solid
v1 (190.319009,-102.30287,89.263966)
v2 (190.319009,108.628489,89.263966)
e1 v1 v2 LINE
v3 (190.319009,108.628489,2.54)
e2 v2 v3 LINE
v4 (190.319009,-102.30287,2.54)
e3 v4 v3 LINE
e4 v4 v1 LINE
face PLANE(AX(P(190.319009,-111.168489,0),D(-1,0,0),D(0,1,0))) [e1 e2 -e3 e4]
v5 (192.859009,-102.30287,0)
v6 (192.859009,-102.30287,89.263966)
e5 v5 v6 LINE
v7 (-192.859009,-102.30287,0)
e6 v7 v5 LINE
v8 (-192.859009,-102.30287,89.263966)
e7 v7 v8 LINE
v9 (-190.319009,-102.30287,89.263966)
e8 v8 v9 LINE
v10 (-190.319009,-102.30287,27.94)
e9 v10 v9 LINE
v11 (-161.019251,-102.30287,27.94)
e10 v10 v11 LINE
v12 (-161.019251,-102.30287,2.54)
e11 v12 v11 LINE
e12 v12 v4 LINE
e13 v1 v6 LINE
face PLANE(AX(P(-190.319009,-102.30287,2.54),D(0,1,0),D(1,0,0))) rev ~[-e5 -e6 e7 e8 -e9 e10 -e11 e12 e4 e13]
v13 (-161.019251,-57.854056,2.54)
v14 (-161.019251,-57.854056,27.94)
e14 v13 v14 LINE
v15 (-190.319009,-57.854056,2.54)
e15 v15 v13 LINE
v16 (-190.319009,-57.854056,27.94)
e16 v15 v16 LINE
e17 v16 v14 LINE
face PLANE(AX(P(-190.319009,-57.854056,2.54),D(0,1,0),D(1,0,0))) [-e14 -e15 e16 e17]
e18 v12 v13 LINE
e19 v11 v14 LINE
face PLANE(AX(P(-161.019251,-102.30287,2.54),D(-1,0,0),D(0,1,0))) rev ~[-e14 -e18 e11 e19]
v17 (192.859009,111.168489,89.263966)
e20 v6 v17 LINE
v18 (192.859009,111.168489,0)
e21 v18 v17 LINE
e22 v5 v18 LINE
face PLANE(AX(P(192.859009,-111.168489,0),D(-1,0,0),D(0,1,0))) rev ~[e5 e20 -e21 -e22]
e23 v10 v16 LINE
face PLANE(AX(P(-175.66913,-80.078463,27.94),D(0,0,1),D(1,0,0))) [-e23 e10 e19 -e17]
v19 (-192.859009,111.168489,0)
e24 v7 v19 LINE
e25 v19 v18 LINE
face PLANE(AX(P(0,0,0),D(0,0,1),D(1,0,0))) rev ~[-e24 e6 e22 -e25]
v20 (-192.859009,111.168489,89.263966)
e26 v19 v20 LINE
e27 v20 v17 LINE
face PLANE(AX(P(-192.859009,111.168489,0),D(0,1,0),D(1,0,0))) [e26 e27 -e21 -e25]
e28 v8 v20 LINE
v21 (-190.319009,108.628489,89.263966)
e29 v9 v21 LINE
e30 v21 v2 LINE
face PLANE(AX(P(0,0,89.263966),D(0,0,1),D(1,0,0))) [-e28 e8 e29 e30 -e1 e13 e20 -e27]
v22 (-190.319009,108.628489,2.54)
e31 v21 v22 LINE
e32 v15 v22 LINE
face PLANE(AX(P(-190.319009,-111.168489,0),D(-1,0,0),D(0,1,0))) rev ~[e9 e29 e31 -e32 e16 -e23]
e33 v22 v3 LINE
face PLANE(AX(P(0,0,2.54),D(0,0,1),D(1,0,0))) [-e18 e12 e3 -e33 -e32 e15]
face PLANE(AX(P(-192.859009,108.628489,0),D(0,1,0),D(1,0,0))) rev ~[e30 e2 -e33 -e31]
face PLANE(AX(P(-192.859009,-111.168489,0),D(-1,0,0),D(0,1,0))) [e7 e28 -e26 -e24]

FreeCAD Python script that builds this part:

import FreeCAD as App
import Part
import Sketcher
from FreeCAD import Vector
Q = App.Units.Quantity


def faces_at(feature, points):
    """Names of the faces that lie closest to the given points."""
    faces = feature.Shape.Faces
    near = lambda p: min(range(len(faces)), key=lambda i: faces[i].distToShape(Part.Vertex(*p))[0])
    return sorted({f"Face{near(p) + 1}" for p in points})


def add_polygon(sketch, points):
    """Adds a closed chain of lines whose ends are joined by coincident constraints."""
    first, n = sketch.GeometryCount, len(points)
    for a, b in zip(points, points[1:] + points[:1]):
        sketch.addGeometry(Part.LineSegment(App.Vector(*a, 0), App.Vector(*b, 0)), False)
    for i in range(n):
        sketch.addConstraint(Sketcher.Constraint("Coincident", first + i, 2, first + (i + 1) % n, 1))

doc = App.newDocument("Part")
body = doc.addObject("PartDesign::Body", "Body")

sketch1 = body.newObject("Sketcher::SketchObject", "Sketch")
sketch1.AttachmentSupport = (doc.getObject("XY_Plane"), [""])
sketch1.MapMode = "FlatFace"
add_polygon(sketch1, [(-193, 111), (-193, -111), (193, -111), (193, 111)])
sketch1.addConstraint(Sketcher.Constraint("Vertical", 0))
sketch1.addConstraint(Sketcher.Constraint("Horizontal", 1))
sketch1.addConstraint(Sketcher.Constraint("Vertical", 2))
sketch1.addConstraint(Sketcher.Constraint("Horizontal", 3))
sketch1.addConstraint(Sketcher.Constraint("Symmetric", 0, 2, 2, 2, -1, 1))
sketch1.addConstraint(Sketcher.Constraint("DistanceX", 1, 1, 1, 2, 385.718018))
sketch1.addConstraint(Sketcher.Constraint("DistanceY", 0, 2, 0, 1, 222.336978))
pad1 = body.newObject("PartDesign::Pad", "Pad")
pad1.Profile = sketch1
pad1.Length = 89.263966
doc.recompute()

thickness = body.newObject("PartDesign::Thickness", "Thickness")
thickness.Base = (pad1, faces_at(pad1, [(0, 0, 89.264)]))
thickness.Value = Q("0.1 in")
thickness.Reversed = True
thickness.Join = "Arc"

sketch2 = body.newObject("Sketcher::SketchObject", "Sketch001")
sketch2.AttachmentSupport = (doc.getObject("XZ_Plane"), [""])
sketch2.MapMode = "FlatFace"
sketch2.AttachmentOffset = App.Placement(Vector(0, 0, 111.168489), App.Rotation())
add_polygon(sketch2, [(-193, 89), (-193, 0), (193, 0), (193, 89)])
sketch2.addConstraint(Sketcher.Constraint("Vertical", 0))
sketch2.addConstraint(Sketcher.Constraint("Horizontal", 1))
sketch2.addConstraint(Sketcher.Constraint("Vertical", 2))
sketch2.addConstraint(Sketcher.Constraint("Horizontal", 3))
sketch2.addConstraint(Sketcher.Constraint("Symmetric", 0, 2, 1, 2, -1, 1))
sketch2.addConstraint(Sketcher.Constraint("DistanceX", 1, 1, 1, 2, 385.718018))
sketch2.addConstraint(Sketcher.Constraint("DistanceY", 0, 2, 0, 1, 89.263966))
pocket1 = body.newObject("PartDesign::Pocket", "Pocket")
pocket1.Profile = sketch2
pocket1.Length = 8.865619

sketch3 = body.newObject("Sketcher::SketchObject", "Sketch002")
sketch3.AttachmentSupport = (doc.getObject("XY_Plane"), [""])
sketch3.MapMode = "FlatFace"
sketch3.AttachmentOffset = App.Placement(Vector(0, 0, 0.1 * 25.4), App.Rotation())
add_polygon(sketch3, [(-190, -58), (-190, -102), (-161, -102), (-161, -58)])
sketch3.addConstraint(Sketcher.Constraint("Vertical", 0))
sketch3.addConstraint(Sketcher.Constraint("Horizontal", 1))
sketch3.addConstraint(Sketcher.Constraint("Vertical", 2))
sketch3.addConstraint(Sketcher.Constraint("Horizontal", 3))
sketch3.addConstraint(Sketcher.Constraint("DistanceX", 1, 1, 1, 2, 29.299758))
sketch3.addConstraint(Sketcher.Constraint("DistanceY", 0, 2, 0, 1, 44.448814))
sketch3.addConstraint(Sketcher.Constraint("DistanceX", 0, 2, -1, 1, 190.319009))
sketch3.addConstraint(Sketcher.Constraint("DistanceY", 0, 2, -1, 1, 102.30287))
pad2 = body.newObject("PartDesign::Pad", "Pad001")
pad2.Profile = sketch3
pad2.Length = Q("1 in")

doc.recompute()
